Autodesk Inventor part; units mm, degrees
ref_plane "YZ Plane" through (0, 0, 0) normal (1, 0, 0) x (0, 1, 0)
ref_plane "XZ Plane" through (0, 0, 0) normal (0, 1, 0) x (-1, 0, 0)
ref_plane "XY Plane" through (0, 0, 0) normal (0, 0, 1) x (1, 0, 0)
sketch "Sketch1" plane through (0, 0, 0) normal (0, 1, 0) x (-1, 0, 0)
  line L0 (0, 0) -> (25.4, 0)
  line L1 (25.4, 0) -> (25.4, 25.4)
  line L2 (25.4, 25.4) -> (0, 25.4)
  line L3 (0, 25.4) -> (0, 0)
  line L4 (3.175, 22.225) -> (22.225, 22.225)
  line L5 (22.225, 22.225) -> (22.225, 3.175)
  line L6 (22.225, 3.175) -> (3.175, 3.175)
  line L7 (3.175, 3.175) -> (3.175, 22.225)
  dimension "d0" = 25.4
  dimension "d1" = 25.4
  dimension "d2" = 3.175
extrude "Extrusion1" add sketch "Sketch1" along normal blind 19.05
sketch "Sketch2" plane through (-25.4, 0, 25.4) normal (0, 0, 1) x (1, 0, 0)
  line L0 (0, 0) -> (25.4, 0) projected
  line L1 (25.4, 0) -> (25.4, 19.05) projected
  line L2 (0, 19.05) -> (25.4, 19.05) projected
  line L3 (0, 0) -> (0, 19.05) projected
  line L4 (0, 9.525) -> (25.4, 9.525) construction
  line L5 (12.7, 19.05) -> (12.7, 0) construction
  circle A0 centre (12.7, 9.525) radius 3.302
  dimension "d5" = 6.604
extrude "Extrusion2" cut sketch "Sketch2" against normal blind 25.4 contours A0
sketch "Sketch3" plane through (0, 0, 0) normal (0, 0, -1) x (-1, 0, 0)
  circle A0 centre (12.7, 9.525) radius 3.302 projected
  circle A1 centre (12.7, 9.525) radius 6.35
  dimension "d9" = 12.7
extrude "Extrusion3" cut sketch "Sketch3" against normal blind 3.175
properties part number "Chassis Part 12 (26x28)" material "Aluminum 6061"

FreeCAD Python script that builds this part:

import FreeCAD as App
import Part
import Sketcher
Q = App.Units.Quantity

doc = App.newDocument("Part")
params = doc.addObject("Spreadsheet::Sheet", "Params")
for row, (alias, value) in enumerate([
    ("sketch1_width", "1 in"),
    ("pad1_length", "0.75 in"),
    ("sketch2_diameter", "0.26 in"),
    ("pocket1_length", "1 in"),
    ("sketch3_diameter", "0.5 in"),
    ("sketch3_diameter2", "0.26 in"),
    ("pocket2_length", "0.125 in"),
], start=1):
    params.set(f"A{row}", alias)
    params.set(f"B{row}", "=" + value)
    params.setAlias(f"B{row}", alias)

body = doc.addObject("PartDesign::Body", "Body")

# Sketch on XZ plane
sketch1 = body.newObject("Sketcher::SketchObject", "Sketch")
sketch1.AttachmentSupport = (doc.getObject("XZ_Plane"), [""])
sketch1.MapMode = "FlatFace"
sketch1.addGeometry([
    Part.LineSegment(App.Vector(0, 25, 0), App.Vector(0, 0, 0)),  # 0
    Part.LineSegment(App.Vector(0, 0, 0), App.Vector(-25, 0, 0)),  # 1
    Part.LineSegment(App.Vector(-25, 0, 0), App.Vector(-25, 25, 0)),  # 2
    Part.LineSegment(App.Vector(-25, 25, 0), App.Vector(0, 25, 0)),  # 3
    Part.LineSegment(App.Vector(-3, 3, 0), App.Vector(-3, 22, 0)),  # 4
    Part.LineSegment(App.Vector(-3, 22, 0), App.Vector(-22, 22, 0)),  # 5
    Part.LineSegment(App.Vector(-22, 22, 0), App.Vector(-22, 3, 0)),  # 6
    Part.LineSegment(App.Vector(-22, 3, 0), App.Vector(-3, 3, 0)),  # 7
], False)
sketch1.addConstraint([
    Sketcher.Constraint("Coincident", 0, 2, 1, 1),
    Sketcher.Constraint("Coincident", 1, 2, 2, 1),
    Sketcher.Constraint("Coincident", 2, 2, 3, 1),
    Sketcher.Constraint("Coincident", 3, 2, 0, 1),
    Sketcher.Constraint("Coincident", 4, 2, 5, 1),
    Sketcher.Constraint("Coincident", 5, 2, 6, 1),
    Sketcher.Constraint("Coincident", 6, 2, 7, 1),
    Sketcher.Constraint("Coincident", 7, 2, 4, 1),
    Sketcher.Constraint("Vertical", 0),
    Sketcher.Constraint("Horizontal", 1),
    Sketcher.Constraint("Vertical", 2),
    Sketcher.Constraint("Horizontal", 3),
    Sketcher.Constraint("Vertical", 4),
    Sketcher.Constraint("Horizontal", 5),
    Sketcher.Constraint("Vertical", 6),
    Sketcher.Constraint("Horizontal", 7),
    Sketcher.Constraint("Coincident", 0, 2, -1, 1),
    Sketcher.Constraint("Equal", 3, 0),
    Sketcher.Constraint("Equal", 7, 4),
    Sketcher.Constraint("DistanceX", 1, 2, 1, 1, Q("1 in")),
    Sketcher.Constraint("DistanceX", 4, 2, -1, 1, Q("0.125 in")),
    Sketcher.Constraint("DistanceY", -1, 1, 6, 2, Q("0.125 in")),
    Sketcher.Constraint("DistanceY", 4, 2, 3, 2, Q("0.125 in")),
])
sketch1.setExpression("Constraints[19]", "Params.sketch1_width")
pad1 = body.newObject("PartDesign::Pad", "Pad")
pad1.Profile = sketch1
pad1.setExpression("Length", "Params.pad1_length")
pad1.Reversed = True

# Sketch on XY plane
sketch2 = body.newObject("Sketcher::SketchObject", "Sketch001")
sketch2.AttachmentSupport = (doc.getObject("XY_Plane"), [""])
sketch2.MapMode = "FlatFace"
sketch2.AttachmentOffset = App.Placement(App.Vector(0, 0, 1 * 25.4), App.Rotation())
sketch2.addGeometry(Part.Circle(App.Vector(-12.7, 9.5, 0), App.Vector(0, 0, 1), 3.3), False)
sketch2.addConstraint([
    Sketcher.Constraint("Diameter", 0, Q("0.26 in")),
    Sketcher.Constraint("DistanceX", 0, 3, -1, 1, Q("0.5 in")),
    Sketcher.Constraint("DistanceY", -1, 1, 0, 3, Q("0.375 in")),
])
sketch2.setExpression("Constraints[0]", "Params.sketch2_diameter")
pocket1 = body.newObject("PartDesign::Pocket", "Pocket")
pocket1.Profile = sketch2
pocket1.setExpression("Length", "Params.pocket1_length")

# Sketch on XY plane
sketch3 = body.newObject("Sketcher::SketchObject", "Sketch002")
sketch3.AttachmentSupport = (doc.getObject("XY_Plane"), [""])
sketch3.MapMode = "FlatFace"
sketch3.addGeometry([
    Part.Circle(App.Vector(-12.7, 9.5, 0), App.Vector(0, 0, 1), 6.3),
    Part.Circle(App.Vector(-12.7, 9.5, 0), App.Vector(0, 0, 1), 3.3),
], False)
sketch3.addConstraint([
    Sketcher.Constraint("Coincident", 1, 3, 0, 3),
    Sketcher.Constraint("Diameter", 0, Q("0.5 in")),
    Sketcher.Constraint("DistanceX", 0, 3, -1, 1, Q("0.5 in")),
    Sketcher.Constraint("Diameter", 1, Q("0.26 in")),
    Sketcher.Constraint("DistanceY", -1, 1, 0, 3, Q("0.375 in")),
])
sketch3.setExpression("Constraints[1]", "Params.sketch3_diameter")
sketch3.setExpression("Constraints[3]", "Params.sketch3_diameter2")
pocket2 = body.newObject("PartDesign::Pocket", "Pocket001")
pocket2.Profile = sketch3
pocket2.setExpression("Length", "Params.pocket2_length")
pocket2.Reversed = True

doc.recompute()
